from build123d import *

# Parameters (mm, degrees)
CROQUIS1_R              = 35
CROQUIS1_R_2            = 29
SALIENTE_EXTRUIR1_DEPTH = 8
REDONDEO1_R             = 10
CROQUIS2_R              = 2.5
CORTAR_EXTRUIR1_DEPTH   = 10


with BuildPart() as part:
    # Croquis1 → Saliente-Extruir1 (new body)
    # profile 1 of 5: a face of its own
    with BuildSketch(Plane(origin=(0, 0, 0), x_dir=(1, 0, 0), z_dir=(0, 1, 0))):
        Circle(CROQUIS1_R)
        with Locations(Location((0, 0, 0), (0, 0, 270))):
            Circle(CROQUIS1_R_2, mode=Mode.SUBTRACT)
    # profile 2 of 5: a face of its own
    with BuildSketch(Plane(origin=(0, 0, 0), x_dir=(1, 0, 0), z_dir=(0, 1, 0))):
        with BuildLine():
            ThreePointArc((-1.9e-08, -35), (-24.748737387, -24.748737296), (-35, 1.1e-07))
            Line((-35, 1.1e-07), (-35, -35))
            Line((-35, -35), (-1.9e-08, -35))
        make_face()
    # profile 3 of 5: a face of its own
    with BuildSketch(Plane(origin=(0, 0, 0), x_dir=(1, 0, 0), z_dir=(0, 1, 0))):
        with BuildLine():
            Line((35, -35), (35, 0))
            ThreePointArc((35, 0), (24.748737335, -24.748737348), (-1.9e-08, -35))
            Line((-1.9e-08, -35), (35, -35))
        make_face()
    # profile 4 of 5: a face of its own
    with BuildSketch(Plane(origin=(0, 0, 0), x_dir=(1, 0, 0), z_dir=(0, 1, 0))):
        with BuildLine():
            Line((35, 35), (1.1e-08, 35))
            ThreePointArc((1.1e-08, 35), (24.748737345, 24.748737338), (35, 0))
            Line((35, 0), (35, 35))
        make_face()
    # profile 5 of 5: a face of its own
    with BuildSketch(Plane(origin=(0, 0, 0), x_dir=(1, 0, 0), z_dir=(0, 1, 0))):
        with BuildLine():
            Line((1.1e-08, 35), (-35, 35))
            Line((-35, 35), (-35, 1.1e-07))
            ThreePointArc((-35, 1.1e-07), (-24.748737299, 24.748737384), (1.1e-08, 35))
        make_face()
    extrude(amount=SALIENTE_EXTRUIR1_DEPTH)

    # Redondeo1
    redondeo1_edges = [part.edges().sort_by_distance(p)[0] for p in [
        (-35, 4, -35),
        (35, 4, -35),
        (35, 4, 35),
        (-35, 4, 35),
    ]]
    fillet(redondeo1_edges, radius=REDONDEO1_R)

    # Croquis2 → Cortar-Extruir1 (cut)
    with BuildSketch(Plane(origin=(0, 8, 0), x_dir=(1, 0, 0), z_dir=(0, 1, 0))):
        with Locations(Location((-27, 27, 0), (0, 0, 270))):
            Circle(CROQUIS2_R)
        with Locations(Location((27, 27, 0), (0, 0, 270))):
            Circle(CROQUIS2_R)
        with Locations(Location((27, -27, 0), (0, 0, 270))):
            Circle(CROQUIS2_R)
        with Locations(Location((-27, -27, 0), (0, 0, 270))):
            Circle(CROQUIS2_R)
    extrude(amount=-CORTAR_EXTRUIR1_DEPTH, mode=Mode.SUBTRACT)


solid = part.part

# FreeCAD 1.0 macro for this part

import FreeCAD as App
import Part
import Sketcher

V = App.Vector
Q = App.Units.Quantity


def edges_at(feature, points):
    """Names of the edges that pass closest to the given points."""
    edges = feature.Shape.Edges
    near = lambda p: min(range(len(edges)), key=lambda i: edges[i].distToShape(Part.Vertex(*p))[0])
    return sorted({f"Edge{near(p) + 1}" for p in points})

doc = App.newDocument("Part")
body = doc.addObject("PartDesign::Body", "Body")

# Sketch on XZ plane
sketch1 = body.newObject("Sketcher::SketchObject", "Sketch")
sketch1.AttachmentSupport = (doc.getObject("XZ_Plane"), [""])
sketch1.MapMode = "FlatFace"
sketch1.addGeometry([
    Part.LineSegment(V(35, -35, 0), V(-35, -35, 0)),  # 0
    Part.LineSegment(V(-35, -35, 0), V(-35, 35, 0)),  # 1
    Part.LineSegment(V(-35, 35, 0), V(35, 35, 0)),  # 2
    Part.LineSegment(V(35, 35, 0), V(35, -35, 0)),  # 3
    Part.Circle(V(0, 0, 0), V(0, 0, 1), 29),  # 4
], False)
sketch1.addConstraint([
    Sketcher.Constraint("Coincident", 0, 2, 1, 1),
    Sketcher.Constraint("Coincident", 1, 2, 2, 1),
    Sketcher.Constraint("Coincident", 2, 2, 3, 1),
    Sketcher.Constraint("Coincident", 3, 2, 0, 1),
    Sketcher.Constraint("Horizontal", 0),
    Sketcher.Constraint("Vertical", 1),
    Sketcher.Constraint("Horizontal", 2),
    Sketcher.Constraint("Vertical", 3),
    Sketcher.Constraint("Coincident", 4, 3, -1, 1),
    Sketcher.Constraint("Symmetric", 0, 2, 2, 2, -1, 1),
    Sketcher.Constraint("Equal", 2, 1),
    Sketcher.Constraint("Diameter", 4, Q("58 mm")),
    Sketcher.Constraint("DistanceX", 0, 2, 0, 1, Q("70 mm")),
])
pad1 = body.newObject("PartDesign::Pad", "Pad")
pad1.Profile = sketch1
pad1.Length = 8
pad1.Reversed = True
doc.recompute()

fillet = body.newObject("PartDesign::Fillet", "Fillet")
fillet.Base = (pad1, edges_at(pad1, [
    (-35, 4, -35),
    (35, 4, -35),
    (35, 4, 35),
    (-35, 4, 35),
]))
fillet.Radius = 10

# Sketch on XZ plane
sketch2 = body.newObject("Sketcher::SketchObject", "Sketch001")
sketch2.AttachmentSupport = (doc.getObject("XZ_Plane"), [""])
sketch2.MapMode = "FlatFace"
sketch2.AttachmentOffset = App.Placement(V(0, 0, -8), App.Rotation())
sketch2.addGeometry([
    Part.Circle(V(-27, -27, 0), V(0, 0, 1), 2.5),
    Part.Circle(V(27, -27, 0), V(0, 0, 1), 2.5),
    Part.Circle(V(27, 27, 0), V(0, 0, 1), 2.5),
    Part.Circle(V(-27, 27, 0), V(0, 0, 1), 2.5),
], False)
sketch2.addConstraint([
    Sketcher.Constraint("Equal", 0, 1),
    Sketcher.Constraint("Equal", 1, 2),
    Sketcher.Constraint("Equal", 2, 3),
    Sketcher.Constraint("Symmetric", 0, 3, 2, 3, -1, 1),
    Sketcher.Constraint("Symmetric", 1, 3, 3, 3, -1, 1),
    Sketcher.Constraint("Symmetric", 0, 3, 1, 3, -2),
    Sketcher.Constraint("Diameter", 0, Q("5 mm")),
    Sketcher.Constraint("DistanceX", 0, 3, -1, 1, Q("27 mm")),
    Sketcher.Constraint("DistanceY", 0, 3, -1, 1, Q("27 mm")),
])
pocket1 = body.newObject("PartDesign::Pocket", "Pocket")
pocket1.Profile = sketch2
pocket1.Length = 10
pocket1.Reversed = True

doc.recompute()
